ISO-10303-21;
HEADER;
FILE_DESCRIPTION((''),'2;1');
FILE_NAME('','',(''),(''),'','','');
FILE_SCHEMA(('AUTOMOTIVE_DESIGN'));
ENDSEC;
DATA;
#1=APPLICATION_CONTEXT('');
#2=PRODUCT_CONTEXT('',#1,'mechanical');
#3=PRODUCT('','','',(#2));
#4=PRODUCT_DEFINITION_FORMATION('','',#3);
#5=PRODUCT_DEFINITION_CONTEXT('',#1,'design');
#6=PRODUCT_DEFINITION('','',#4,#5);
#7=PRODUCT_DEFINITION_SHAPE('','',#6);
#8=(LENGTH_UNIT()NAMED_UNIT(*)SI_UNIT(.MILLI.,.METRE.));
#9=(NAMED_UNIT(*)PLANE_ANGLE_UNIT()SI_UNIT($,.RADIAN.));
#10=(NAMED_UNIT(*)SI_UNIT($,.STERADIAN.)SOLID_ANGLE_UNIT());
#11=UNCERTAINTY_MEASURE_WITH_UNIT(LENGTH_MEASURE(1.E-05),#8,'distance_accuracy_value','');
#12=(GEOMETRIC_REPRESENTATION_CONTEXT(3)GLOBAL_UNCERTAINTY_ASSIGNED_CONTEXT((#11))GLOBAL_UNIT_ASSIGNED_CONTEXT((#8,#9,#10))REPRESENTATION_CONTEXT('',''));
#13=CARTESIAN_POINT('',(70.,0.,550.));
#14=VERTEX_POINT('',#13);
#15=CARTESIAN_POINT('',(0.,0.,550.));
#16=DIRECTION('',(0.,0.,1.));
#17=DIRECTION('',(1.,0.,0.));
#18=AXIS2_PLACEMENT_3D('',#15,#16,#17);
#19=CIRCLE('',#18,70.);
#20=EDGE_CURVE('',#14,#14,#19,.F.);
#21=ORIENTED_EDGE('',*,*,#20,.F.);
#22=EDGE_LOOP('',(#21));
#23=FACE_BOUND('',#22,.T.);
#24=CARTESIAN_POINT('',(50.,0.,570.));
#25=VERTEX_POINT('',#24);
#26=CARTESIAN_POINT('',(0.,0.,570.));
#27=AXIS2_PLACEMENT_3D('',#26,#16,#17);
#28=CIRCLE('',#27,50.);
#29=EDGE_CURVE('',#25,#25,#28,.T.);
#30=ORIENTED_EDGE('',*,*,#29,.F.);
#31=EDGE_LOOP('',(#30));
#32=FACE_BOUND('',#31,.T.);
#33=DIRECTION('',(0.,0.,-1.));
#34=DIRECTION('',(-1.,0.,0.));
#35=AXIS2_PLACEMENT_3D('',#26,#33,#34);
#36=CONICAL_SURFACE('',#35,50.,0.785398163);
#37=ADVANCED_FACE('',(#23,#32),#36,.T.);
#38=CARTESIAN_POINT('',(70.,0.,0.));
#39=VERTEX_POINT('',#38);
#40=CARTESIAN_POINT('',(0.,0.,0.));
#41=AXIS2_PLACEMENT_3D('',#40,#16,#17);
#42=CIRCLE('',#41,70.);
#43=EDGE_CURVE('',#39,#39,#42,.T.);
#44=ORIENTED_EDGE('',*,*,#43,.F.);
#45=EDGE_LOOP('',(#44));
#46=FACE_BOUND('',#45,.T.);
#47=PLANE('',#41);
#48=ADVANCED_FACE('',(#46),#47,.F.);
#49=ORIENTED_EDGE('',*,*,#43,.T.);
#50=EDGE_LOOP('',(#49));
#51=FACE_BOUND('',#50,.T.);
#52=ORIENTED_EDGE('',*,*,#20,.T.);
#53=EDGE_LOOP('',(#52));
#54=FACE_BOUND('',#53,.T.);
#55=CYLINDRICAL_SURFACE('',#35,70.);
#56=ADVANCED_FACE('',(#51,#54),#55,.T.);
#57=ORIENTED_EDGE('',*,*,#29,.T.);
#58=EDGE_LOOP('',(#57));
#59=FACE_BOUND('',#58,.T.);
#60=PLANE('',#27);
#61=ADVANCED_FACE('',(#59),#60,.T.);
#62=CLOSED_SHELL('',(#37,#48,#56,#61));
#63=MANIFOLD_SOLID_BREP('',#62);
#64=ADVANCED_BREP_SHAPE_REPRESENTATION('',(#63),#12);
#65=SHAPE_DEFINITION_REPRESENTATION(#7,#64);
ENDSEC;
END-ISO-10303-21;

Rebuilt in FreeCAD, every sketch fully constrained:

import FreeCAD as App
import Part
import Sketcher
from FreeCAD import Vector
Q = App.Units.Quantity


def edges_at(feature, points):
    """Names of the edges that pass closest to the given points."""
    edges = feature.Shape.Edges
    near = lambda p: min(range(len(edges)), key=lambda i: edges[i].distToShape(Part.Vertex(*p))[0])
    return sorted({f"Edge{near(p) + 1}" for p in points})

doc = App.newDocument("Part")
params = doc.addObject("Spreadsheet::Sheet", "Params")
for row, (alias, value) in enumerate([
    ("sketch1_diameter", "140 mm"),
    ("pad1_length", "570 mm"),
    ("chamfer_size", "20 mm"),
], start=1):
    params.set(f"A{row}", alias)
    params.set(f"B{row}", "=" + value)
    params.setAlias(f"B{row}", alias)

body = doc.addObject("PartDesign::Body", "Body")

# Sketch on XY plane
sketch1 = body.newObject("Sketcher::SketchObject", "Sketch")
sketch1.AttachmentSupport = (doc.getObject("XY_Plane"), [""])
sketch1.MapMode = "FlatFace"
sketch1.addGeometry(Part.Circle(Vector(0, 0, 0), Vector(0, 0, 1), 70), False)
sketch1.addConstraint(Sketcher.Constraint("Coincident", 0, 3, -1, 1))
sketch1.addConstraint(Sketcher.Constraint("Diameter", 0, Q("140 mm")))
sketch1.setExpression("Constraints[1]", "Params.sketch1_diameter")
pad1 = body.newObject("PartDesign::Pad", "Pad")
pad1.Profile = sketch1
pad1.setExpression("Length", "Params.pad1_length")
doc.recompute()

chamfer = body.newObject("PartDesign::Chamfer", "Chamfer")
chamfer.Base = (pad1, edges_at(pad1, [(-70, 0, 570)]))
chamfer.setExpression("Size", "Params.chamfer_size")

doc.recompute()
